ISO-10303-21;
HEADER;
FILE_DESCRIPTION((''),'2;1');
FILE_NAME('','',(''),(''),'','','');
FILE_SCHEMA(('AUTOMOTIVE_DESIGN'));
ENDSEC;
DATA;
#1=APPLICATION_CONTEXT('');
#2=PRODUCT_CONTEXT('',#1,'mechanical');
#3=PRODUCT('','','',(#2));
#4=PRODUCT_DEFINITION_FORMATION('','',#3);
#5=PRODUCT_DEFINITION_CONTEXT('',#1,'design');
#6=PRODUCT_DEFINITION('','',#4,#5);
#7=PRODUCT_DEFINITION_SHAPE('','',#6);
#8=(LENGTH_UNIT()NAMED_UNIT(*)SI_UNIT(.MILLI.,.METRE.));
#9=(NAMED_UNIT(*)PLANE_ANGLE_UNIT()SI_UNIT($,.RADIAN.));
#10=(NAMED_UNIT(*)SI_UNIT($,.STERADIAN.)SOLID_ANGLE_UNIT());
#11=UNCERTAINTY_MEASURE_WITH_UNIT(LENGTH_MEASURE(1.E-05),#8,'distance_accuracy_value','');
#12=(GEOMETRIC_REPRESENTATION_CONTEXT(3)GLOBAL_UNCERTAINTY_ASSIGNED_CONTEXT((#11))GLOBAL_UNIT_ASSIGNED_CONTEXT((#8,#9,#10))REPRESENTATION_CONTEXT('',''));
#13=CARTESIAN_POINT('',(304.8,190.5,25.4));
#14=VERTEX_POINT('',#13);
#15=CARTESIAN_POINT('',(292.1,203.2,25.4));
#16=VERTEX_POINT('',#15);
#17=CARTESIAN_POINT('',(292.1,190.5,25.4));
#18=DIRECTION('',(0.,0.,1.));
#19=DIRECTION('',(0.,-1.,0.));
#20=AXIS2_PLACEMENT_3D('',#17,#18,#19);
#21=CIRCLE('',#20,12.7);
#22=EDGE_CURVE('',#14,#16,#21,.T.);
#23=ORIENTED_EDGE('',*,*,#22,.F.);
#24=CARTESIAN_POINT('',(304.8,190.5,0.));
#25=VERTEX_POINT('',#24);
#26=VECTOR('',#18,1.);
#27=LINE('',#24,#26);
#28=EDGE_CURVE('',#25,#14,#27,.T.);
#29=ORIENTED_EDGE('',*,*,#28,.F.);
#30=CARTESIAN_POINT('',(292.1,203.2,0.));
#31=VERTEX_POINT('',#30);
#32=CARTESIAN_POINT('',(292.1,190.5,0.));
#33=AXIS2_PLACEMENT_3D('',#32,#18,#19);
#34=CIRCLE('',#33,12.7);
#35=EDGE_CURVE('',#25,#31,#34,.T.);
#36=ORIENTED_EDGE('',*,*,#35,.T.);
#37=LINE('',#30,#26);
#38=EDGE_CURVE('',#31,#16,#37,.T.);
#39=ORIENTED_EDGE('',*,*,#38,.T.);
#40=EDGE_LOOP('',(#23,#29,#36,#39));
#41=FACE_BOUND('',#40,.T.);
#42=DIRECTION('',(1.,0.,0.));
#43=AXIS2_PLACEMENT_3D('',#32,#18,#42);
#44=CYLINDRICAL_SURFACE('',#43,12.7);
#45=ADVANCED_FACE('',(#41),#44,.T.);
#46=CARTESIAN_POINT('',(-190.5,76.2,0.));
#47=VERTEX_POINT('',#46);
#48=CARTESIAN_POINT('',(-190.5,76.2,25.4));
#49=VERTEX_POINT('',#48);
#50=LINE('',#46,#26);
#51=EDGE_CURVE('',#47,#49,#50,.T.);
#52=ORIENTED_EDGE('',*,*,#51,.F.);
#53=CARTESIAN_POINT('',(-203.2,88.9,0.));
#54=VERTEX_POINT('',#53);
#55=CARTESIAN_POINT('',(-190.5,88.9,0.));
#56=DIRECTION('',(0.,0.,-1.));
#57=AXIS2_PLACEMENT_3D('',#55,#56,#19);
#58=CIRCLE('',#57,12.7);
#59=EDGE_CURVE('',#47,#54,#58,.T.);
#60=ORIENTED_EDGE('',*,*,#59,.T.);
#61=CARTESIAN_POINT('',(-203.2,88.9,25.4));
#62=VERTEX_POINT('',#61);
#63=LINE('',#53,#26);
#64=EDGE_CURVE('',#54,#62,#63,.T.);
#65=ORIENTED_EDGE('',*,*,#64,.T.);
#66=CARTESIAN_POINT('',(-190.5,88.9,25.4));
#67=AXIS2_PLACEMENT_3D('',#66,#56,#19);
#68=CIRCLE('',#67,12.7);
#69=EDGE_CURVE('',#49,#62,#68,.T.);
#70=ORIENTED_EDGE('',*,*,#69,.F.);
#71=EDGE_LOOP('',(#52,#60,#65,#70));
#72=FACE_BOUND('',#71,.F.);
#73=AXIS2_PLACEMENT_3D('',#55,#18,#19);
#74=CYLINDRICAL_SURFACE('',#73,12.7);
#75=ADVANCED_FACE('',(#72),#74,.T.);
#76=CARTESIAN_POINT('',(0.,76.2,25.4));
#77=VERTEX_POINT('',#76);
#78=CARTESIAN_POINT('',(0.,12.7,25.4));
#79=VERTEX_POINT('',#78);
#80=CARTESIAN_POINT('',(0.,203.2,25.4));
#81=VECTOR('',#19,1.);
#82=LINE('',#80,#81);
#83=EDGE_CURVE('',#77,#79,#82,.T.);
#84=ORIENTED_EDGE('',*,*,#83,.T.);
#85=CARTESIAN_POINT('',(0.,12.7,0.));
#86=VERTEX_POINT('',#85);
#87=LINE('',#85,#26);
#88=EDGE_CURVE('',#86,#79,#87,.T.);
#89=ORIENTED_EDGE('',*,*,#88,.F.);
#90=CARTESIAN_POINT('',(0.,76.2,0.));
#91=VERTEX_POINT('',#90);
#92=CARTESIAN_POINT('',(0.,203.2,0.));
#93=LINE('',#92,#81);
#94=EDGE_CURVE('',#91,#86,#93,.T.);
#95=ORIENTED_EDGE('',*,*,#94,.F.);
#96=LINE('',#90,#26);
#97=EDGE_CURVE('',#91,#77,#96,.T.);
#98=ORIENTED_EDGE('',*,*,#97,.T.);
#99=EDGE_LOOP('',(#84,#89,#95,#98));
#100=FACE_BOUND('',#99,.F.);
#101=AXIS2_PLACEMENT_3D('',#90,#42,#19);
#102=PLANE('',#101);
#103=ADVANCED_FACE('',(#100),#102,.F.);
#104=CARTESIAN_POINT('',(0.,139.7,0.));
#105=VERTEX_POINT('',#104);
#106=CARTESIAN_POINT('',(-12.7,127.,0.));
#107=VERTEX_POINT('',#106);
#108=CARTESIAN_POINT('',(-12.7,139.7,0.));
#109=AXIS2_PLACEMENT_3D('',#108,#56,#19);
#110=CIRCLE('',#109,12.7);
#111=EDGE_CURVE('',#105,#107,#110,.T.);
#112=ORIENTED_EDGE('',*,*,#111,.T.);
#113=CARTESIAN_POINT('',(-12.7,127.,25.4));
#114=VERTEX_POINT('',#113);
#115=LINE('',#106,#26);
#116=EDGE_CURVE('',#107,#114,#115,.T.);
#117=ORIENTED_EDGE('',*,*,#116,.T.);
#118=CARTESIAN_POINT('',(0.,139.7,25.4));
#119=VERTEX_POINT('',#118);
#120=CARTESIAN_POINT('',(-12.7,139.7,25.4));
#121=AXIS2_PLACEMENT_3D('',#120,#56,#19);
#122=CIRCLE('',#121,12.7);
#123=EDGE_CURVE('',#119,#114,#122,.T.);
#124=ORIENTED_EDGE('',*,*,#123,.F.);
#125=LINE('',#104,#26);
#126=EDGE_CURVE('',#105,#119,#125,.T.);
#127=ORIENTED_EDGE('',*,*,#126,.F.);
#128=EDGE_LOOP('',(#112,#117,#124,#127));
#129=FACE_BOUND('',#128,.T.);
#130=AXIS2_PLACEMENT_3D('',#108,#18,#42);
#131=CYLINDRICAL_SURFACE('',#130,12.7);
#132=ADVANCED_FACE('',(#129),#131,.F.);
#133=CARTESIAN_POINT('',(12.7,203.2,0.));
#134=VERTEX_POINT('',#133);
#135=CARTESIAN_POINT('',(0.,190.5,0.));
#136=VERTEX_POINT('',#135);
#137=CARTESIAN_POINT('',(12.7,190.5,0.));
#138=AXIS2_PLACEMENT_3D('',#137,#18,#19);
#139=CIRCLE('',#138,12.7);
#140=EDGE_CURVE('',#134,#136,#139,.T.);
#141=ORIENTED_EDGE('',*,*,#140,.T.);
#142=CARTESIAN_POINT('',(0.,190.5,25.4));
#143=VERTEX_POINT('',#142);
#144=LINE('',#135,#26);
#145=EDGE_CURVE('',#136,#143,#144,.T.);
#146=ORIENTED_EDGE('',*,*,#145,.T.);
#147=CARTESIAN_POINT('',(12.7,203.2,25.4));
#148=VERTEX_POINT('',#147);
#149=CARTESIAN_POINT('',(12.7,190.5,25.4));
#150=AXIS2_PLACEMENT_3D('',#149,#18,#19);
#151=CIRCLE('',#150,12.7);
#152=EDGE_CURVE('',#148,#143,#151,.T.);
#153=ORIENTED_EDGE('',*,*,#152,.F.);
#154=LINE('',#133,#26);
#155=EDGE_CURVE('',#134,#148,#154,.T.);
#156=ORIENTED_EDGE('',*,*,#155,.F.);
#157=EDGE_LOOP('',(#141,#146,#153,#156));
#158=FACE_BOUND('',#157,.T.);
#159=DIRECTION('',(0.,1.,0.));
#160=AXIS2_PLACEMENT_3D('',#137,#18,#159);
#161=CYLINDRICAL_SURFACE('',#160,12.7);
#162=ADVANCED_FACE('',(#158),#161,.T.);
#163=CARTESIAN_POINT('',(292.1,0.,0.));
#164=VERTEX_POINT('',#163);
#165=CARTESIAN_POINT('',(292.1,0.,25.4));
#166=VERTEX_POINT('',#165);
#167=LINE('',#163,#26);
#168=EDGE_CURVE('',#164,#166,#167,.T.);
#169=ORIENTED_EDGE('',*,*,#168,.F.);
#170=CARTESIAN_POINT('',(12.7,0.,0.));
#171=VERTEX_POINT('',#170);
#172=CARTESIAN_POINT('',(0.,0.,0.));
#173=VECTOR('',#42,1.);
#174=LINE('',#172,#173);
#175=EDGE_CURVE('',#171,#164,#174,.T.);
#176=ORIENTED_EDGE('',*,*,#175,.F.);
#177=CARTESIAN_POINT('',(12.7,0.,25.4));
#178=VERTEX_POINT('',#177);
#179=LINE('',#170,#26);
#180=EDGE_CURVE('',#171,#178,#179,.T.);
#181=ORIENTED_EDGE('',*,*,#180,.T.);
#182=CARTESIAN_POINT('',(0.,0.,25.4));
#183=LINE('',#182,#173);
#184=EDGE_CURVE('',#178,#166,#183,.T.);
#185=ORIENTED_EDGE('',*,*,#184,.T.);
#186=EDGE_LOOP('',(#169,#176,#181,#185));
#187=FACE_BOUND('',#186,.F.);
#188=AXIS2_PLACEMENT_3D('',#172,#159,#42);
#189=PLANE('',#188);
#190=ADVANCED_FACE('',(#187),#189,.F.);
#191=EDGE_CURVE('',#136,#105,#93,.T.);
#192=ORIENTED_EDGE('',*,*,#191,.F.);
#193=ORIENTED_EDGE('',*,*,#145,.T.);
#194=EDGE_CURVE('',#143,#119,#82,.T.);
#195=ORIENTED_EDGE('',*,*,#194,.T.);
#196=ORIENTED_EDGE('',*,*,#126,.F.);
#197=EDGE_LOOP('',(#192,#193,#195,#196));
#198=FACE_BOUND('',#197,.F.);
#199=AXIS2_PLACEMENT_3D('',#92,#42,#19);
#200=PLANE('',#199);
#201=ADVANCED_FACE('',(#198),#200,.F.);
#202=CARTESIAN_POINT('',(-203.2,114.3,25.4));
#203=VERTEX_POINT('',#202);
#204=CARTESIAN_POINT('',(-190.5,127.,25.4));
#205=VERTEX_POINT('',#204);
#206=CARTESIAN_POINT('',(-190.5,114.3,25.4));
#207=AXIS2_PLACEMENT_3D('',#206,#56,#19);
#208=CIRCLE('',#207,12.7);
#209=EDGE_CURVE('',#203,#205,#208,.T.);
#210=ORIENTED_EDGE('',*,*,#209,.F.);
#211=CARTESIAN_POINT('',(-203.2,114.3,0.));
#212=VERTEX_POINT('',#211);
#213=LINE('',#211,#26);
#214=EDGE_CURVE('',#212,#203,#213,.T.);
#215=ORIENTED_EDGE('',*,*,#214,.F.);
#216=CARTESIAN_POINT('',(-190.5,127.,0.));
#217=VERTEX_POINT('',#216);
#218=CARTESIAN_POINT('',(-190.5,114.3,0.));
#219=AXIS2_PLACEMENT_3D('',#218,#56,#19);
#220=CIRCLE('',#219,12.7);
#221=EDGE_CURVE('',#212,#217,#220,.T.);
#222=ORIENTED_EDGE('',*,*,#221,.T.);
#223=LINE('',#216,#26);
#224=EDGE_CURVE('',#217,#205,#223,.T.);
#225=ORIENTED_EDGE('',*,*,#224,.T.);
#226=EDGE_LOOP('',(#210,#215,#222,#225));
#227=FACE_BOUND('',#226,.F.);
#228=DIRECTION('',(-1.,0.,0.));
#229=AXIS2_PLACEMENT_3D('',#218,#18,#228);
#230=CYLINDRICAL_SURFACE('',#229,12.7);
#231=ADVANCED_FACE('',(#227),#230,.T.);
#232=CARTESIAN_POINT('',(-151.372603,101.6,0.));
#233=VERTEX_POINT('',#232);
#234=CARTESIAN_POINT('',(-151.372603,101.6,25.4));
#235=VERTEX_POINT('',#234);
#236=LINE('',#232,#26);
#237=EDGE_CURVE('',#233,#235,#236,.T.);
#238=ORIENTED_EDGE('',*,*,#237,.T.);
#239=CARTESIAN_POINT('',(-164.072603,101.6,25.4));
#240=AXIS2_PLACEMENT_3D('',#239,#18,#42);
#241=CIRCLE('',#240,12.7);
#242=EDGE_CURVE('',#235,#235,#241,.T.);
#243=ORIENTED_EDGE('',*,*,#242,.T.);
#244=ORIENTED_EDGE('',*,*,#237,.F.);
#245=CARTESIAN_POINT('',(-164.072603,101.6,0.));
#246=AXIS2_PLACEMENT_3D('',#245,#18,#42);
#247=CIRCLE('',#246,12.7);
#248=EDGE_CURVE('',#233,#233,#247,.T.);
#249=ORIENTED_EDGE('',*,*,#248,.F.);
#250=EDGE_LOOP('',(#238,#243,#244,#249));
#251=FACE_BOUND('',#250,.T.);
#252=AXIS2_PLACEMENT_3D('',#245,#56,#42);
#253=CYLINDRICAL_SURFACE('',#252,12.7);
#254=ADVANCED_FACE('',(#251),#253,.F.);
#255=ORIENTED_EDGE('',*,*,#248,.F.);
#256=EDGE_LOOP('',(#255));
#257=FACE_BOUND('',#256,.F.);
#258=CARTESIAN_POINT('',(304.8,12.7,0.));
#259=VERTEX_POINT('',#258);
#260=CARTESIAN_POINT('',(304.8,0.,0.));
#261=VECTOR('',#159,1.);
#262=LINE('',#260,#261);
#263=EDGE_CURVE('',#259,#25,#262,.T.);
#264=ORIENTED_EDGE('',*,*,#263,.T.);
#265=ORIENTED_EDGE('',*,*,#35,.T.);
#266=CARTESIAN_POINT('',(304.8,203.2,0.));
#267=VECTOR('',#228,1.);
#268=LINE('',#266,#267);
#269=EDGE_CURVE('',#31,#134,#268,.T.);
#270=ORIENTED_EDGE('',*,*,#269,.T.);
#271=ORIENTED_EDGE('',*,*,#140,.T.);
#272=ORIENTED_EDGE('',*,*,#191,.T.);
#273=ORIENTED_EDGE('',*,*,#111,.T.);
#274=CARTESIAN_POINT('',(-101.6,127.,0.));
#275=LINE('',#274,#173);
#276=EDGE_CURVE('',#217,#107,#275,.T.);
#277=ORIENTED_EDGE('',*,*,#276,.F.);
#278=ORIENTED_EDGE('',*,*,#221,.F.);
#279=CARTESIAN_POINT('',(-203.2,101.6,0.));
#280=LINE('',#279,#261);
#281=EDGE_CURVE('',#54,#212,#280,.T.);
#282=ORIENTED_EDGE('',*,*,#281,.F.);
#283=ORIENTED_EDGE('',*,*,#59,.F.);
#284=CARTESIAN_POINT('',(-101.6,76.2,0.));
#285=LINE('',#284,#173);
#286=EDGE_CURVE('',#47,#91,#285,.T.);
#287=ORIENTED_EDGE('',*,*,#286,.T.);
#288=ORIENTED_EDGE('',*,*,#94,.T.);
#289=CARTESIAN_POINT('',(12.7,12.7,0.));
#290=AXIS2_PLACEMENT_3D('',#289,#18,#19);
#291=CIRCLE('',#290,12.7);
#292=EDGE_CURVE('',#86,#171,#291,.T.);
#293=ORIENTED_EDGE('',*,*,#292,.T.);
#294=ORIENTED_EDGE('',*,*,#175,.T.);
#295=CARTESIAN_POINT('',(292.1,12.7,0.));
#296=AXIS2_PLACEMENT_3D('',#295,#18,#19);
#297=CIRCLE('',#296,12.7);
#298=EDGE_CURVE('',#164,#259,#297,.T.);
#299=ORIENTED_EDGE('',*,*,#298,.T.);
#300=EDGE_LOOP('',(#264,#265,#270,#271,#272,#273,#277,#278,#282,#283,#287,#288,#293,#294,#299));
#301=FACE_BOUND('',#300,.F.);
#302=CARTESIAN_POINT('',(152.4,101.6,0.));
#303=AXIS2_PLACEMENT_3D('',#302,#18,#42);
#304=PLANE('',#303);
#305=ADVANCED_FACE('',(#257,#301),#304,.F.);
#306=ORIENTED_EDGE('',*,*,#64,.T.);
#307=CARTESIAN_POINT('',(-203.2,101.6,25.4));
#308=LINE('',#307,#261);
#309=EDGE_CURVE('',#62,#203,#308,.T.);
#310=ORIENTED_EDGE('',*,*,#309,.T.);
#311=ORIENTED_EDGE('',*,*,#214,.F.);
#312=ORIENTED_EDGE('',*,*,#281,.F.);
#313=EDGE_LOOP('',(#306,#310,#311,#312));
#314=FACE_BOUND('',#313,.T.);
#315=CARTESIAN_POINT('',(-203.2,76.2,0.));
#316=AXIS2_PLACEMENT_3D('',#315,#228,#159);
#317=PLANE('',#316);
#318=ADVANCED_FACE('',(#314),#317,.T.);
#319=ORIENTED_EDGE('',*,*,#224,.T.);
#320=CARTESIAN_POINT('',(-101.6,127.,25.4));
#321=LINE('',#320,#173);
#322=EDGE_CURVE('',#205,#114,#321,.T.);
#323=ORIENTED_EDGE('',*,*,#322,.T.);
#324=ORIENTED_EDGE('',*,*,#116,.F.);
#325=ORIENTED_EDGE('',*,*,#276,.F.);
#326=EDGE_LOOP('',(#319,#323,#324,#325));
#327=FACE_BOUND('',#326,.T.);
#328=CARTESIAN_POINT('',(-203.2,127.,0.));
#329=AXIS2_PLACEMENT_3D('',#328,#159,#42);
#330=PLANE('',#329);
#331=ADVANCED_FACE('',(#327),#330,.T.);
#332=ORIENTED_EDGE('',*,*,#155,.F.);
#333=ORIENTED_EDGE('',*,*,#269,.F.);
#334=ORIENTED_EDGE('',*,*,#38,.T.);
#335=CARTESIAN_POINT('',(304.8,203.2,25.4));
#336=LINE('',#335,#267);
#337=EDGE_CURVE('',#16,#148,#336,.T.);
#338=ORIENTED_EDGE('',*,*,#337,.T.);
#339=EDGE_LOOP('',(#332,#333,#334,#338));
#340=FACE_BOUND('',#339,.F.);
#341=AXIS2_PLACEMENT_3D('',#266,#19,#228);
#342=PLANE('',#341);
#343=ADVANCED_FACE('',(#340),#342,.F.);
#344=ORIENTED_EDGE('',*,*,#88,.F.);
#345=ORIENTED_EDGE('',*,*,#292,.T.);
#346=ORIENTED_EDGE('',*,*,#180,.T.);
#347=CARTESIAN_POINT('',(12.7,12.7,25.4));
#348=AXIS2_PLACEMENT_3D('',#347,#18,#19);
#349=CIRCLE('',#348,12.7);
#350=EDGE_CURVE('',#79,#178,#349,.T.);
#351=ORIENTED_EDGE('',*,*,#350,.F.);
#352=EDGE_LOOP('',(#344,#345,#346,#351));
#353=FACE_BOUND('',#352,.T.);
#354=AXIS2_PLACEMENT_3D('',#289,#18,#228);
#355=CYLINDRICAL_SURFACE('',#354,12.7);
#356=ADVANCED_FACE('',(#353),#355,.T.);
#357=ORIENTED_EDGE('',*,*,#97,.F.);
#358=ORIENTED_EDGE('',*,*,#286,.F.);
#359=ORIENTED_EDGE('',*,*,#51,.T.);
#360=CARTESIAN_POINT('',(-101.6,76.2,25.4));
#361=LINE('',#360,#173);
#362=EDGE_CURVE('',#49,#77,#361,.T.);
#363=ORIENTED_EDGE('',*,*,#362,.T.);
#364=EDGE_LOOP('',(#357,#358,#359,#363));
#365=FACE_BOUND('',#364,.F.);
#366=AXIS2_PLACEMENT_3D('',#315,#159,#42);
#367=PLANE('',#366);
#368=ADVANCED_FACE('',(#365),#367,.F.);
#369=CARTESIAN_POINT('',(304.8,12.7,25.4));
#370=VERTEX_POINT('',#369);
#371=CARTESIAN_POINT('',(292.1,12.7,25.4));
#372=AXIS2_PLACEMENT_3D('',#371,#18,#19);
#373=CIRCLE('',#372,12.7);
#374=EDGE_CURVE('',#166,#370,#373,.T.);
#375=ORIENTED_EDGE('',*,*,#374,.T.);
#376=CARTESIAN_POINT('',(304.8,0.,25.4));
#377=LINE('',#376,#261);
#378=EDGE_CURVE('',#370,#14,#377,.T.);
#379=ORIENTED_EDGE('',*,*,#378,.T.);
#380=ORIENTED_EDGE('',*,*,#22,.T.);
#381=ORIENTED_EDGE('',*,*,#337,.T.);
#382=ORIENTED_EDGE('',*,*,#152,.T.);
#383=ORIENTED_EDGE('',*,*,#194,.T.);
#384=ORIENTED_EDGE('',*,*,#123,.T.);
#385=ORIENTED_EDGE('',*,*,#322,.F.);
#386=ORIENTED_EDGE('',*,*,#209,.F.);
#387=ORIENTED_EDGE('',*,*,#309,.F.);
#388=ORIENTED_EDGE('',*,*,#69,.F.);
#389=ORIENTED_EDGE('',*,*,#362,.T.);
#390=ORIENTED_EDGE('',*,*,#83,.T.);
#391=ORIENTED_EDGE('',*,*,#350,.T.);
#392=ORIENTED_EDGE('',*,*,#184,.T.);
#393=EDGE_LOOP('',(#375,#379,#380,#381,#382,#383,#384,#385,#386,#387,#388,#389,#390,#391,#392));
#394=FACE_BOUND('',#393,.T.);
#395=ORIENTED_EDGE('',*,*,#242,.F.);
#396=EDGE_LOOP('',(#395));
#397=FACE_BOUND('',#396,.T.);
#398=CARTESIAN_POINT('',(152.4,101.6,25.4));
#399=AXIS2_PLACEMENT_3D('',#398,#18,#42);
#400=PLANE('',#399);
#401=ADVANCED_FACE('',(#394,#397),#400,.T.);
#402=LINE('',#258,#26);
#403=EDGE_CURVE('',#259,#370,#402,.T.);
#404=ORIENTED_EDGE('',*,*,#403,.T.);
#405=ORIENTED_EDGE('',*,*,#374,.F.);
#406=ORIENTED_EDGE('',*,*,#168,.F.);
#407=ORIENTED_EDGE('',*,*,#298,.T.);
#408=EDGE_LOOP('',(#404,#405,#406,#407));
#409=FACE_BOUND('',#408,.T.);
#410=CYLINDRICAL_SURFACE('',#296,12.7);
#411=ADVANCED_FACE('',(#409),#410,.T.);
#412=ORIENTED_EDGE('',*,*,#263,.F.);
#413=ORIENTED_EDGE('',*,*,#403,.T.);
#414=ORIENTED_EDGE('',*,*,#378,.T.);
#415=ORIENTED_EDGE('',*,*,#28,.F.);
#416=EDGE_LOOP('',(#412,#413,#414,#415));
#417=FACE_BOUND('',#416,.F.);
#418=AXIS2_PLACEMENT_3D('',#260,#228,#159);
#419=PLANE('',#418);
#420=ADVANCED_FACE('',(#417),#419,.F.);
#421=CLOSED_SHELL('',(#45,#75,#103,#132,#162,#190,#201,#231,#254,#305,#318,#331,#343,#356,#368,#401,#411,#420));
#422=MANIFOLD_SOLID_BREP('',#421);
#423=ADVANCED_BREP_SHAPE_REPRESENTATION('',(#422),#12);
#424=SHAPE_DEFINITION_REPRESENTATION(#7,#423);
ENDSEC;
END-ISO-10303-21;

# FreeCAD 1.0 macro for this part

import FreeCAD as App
import Part
import Sketcher

V = App.Vector
Q = App.Units.Quantity


def edges_at(feature, points):
    """Names of the edges that pass closest to the given points."""
    edges = feature.Shape.Edges
    near = lambda p: min(range(len(edges)), key=lambda i: edges[i].distToShape(Part.Vertex(*p))[0])
    return sorted({f"Edge{near(p) + 1}" for p in points})

doc = App.newDocument("Part")
body = doc.addObject("PartDesign::Body", "Body")

sketch1 = body.newObject("Sketcher::SketchObject", "Sketch")
sketch1.AttachmentSupport = (doc.getObject("XY_Plane"), [""])
sketch1.MapMode = "FlatFace"
sketch1.addGeometry([
    Part.LineSegment(V(0, 0, 0), V(304.8, 0, 0)),
    Part.LineSegment(V(304.8, 0, 0), V(304.8, 203.2, 0)),
    Part.LineSegment(V(304.8, 203.2, 0), V(0, 203.2, 0)),
    Part.LineSegment(V(0, 203.2, 0), V(0, 127, 0)),
    Part.LineSegment(V(0, 127, 0), V(-203.2, 127, 0)),
    Part.LineSegment(V(-203.2, 127, 0), V(-203.2, 76.2, 0)),
    Part.LineSegment(V(-203.2, 76.2, 0), V(0, 76.2, 0)),
    Part.LineSegment(V(0, 76.2, 0), V(0, 0, 0)),
    Part.Circle(V(-164.072603, 101.6, 0), V(0, 0, 1), 12.7),
], False)
sketch1.addConstraint([
    Sketcher.Constraint("Coincident", 0, 2, 1, 1),
    Sketcher.Constraint("Coincident", 1, 2, 2, 1),
    Sketcher.Constraint("Coincident", 2, 2, 3, 1),
    Sketcher.Constraint("Coincident", 3, 2, 4, 1),
    Sketcher.Constraint("Coincident", 4, 2, 5, 1),
    Sketcher.Constraint("Coincident", 5, 2, 6, 1),
    Sketcher.Constraint("Coincident", 6, 2, 7, 1),
    Sketcher.Constraint("Coincident", 7, 2, 0, 1),
    Sketcher.Constraint("Horizontal", 0),
    Sketcher.Constraint("Vertical", 1),
    Sketcher.Constraint("Horizontal", 2),
    Sketcher.Constraint("Vertical", 3),
    Sketcher.Constraint("Horizontal", 4),
    Sketcher.Constraint("Vertical", 5),
    Sketcher.Constraint("Horizontal", 6),
    Sketcher.Constraint("Vertical", 7),
    Sketcher.Constraint("Coincident", 7, 2, -1, 1),
    Sketcher.Constraint("PointOnObject", 2, 2, -2),
    Sketcher.Constraint("Equal", 6, 1),
    Sketcher.Constraint("Equal", 3, 7),
    Sketcher.Constraint("Diameter", 8, Q("1 in")),
    Sketcher.Constraint("DistanceX", 0, 1, 0, 2, Q("12 in")),
    Sketcher.Constraint("DistanceX", 4, 2, 4, 1, Q("8 in")),
    Sketcher.Constraint("DistanceY", 3, 2, 3, 1, Q("3 in")),
    Sketcher.Constraint("DistanceY", -1, 1, 8, 3, Q("4 in")),
    Sketcher.Constraint("DistanceX", 8, 3, -1, 1, 164.072603),
])
pad1 = body.newObject("PartDesign::Pad", "Pad")
pad1.Profile = sketch1
pad1.Length = Q("1 in")
doc.recompute()

fillet = body.newObject("PartDesign::Fillet", "Fillet")
fillet.Base = (pad1, edges_at(pad1, [(0, 127, 12.7), (-203.2, 127, 12.7), (-203.2, 76.2, 12.7)]))
fillet.Radius = Q("0.5 in")
doc.recompute()

fillet2 = body.newObject("PartDesign::Fillet", "Fillet001")
fillet2.Base = (fillet, edges_at(fillet, [
    (0, 203.2, 12.7),
    (304.8, 203.2, 12.7),
    (304.8, 0, 12.7),
    (0, 0, 12.7),
]))
fillet2.Radius = Q("0.5 in")

doc.recompute()
